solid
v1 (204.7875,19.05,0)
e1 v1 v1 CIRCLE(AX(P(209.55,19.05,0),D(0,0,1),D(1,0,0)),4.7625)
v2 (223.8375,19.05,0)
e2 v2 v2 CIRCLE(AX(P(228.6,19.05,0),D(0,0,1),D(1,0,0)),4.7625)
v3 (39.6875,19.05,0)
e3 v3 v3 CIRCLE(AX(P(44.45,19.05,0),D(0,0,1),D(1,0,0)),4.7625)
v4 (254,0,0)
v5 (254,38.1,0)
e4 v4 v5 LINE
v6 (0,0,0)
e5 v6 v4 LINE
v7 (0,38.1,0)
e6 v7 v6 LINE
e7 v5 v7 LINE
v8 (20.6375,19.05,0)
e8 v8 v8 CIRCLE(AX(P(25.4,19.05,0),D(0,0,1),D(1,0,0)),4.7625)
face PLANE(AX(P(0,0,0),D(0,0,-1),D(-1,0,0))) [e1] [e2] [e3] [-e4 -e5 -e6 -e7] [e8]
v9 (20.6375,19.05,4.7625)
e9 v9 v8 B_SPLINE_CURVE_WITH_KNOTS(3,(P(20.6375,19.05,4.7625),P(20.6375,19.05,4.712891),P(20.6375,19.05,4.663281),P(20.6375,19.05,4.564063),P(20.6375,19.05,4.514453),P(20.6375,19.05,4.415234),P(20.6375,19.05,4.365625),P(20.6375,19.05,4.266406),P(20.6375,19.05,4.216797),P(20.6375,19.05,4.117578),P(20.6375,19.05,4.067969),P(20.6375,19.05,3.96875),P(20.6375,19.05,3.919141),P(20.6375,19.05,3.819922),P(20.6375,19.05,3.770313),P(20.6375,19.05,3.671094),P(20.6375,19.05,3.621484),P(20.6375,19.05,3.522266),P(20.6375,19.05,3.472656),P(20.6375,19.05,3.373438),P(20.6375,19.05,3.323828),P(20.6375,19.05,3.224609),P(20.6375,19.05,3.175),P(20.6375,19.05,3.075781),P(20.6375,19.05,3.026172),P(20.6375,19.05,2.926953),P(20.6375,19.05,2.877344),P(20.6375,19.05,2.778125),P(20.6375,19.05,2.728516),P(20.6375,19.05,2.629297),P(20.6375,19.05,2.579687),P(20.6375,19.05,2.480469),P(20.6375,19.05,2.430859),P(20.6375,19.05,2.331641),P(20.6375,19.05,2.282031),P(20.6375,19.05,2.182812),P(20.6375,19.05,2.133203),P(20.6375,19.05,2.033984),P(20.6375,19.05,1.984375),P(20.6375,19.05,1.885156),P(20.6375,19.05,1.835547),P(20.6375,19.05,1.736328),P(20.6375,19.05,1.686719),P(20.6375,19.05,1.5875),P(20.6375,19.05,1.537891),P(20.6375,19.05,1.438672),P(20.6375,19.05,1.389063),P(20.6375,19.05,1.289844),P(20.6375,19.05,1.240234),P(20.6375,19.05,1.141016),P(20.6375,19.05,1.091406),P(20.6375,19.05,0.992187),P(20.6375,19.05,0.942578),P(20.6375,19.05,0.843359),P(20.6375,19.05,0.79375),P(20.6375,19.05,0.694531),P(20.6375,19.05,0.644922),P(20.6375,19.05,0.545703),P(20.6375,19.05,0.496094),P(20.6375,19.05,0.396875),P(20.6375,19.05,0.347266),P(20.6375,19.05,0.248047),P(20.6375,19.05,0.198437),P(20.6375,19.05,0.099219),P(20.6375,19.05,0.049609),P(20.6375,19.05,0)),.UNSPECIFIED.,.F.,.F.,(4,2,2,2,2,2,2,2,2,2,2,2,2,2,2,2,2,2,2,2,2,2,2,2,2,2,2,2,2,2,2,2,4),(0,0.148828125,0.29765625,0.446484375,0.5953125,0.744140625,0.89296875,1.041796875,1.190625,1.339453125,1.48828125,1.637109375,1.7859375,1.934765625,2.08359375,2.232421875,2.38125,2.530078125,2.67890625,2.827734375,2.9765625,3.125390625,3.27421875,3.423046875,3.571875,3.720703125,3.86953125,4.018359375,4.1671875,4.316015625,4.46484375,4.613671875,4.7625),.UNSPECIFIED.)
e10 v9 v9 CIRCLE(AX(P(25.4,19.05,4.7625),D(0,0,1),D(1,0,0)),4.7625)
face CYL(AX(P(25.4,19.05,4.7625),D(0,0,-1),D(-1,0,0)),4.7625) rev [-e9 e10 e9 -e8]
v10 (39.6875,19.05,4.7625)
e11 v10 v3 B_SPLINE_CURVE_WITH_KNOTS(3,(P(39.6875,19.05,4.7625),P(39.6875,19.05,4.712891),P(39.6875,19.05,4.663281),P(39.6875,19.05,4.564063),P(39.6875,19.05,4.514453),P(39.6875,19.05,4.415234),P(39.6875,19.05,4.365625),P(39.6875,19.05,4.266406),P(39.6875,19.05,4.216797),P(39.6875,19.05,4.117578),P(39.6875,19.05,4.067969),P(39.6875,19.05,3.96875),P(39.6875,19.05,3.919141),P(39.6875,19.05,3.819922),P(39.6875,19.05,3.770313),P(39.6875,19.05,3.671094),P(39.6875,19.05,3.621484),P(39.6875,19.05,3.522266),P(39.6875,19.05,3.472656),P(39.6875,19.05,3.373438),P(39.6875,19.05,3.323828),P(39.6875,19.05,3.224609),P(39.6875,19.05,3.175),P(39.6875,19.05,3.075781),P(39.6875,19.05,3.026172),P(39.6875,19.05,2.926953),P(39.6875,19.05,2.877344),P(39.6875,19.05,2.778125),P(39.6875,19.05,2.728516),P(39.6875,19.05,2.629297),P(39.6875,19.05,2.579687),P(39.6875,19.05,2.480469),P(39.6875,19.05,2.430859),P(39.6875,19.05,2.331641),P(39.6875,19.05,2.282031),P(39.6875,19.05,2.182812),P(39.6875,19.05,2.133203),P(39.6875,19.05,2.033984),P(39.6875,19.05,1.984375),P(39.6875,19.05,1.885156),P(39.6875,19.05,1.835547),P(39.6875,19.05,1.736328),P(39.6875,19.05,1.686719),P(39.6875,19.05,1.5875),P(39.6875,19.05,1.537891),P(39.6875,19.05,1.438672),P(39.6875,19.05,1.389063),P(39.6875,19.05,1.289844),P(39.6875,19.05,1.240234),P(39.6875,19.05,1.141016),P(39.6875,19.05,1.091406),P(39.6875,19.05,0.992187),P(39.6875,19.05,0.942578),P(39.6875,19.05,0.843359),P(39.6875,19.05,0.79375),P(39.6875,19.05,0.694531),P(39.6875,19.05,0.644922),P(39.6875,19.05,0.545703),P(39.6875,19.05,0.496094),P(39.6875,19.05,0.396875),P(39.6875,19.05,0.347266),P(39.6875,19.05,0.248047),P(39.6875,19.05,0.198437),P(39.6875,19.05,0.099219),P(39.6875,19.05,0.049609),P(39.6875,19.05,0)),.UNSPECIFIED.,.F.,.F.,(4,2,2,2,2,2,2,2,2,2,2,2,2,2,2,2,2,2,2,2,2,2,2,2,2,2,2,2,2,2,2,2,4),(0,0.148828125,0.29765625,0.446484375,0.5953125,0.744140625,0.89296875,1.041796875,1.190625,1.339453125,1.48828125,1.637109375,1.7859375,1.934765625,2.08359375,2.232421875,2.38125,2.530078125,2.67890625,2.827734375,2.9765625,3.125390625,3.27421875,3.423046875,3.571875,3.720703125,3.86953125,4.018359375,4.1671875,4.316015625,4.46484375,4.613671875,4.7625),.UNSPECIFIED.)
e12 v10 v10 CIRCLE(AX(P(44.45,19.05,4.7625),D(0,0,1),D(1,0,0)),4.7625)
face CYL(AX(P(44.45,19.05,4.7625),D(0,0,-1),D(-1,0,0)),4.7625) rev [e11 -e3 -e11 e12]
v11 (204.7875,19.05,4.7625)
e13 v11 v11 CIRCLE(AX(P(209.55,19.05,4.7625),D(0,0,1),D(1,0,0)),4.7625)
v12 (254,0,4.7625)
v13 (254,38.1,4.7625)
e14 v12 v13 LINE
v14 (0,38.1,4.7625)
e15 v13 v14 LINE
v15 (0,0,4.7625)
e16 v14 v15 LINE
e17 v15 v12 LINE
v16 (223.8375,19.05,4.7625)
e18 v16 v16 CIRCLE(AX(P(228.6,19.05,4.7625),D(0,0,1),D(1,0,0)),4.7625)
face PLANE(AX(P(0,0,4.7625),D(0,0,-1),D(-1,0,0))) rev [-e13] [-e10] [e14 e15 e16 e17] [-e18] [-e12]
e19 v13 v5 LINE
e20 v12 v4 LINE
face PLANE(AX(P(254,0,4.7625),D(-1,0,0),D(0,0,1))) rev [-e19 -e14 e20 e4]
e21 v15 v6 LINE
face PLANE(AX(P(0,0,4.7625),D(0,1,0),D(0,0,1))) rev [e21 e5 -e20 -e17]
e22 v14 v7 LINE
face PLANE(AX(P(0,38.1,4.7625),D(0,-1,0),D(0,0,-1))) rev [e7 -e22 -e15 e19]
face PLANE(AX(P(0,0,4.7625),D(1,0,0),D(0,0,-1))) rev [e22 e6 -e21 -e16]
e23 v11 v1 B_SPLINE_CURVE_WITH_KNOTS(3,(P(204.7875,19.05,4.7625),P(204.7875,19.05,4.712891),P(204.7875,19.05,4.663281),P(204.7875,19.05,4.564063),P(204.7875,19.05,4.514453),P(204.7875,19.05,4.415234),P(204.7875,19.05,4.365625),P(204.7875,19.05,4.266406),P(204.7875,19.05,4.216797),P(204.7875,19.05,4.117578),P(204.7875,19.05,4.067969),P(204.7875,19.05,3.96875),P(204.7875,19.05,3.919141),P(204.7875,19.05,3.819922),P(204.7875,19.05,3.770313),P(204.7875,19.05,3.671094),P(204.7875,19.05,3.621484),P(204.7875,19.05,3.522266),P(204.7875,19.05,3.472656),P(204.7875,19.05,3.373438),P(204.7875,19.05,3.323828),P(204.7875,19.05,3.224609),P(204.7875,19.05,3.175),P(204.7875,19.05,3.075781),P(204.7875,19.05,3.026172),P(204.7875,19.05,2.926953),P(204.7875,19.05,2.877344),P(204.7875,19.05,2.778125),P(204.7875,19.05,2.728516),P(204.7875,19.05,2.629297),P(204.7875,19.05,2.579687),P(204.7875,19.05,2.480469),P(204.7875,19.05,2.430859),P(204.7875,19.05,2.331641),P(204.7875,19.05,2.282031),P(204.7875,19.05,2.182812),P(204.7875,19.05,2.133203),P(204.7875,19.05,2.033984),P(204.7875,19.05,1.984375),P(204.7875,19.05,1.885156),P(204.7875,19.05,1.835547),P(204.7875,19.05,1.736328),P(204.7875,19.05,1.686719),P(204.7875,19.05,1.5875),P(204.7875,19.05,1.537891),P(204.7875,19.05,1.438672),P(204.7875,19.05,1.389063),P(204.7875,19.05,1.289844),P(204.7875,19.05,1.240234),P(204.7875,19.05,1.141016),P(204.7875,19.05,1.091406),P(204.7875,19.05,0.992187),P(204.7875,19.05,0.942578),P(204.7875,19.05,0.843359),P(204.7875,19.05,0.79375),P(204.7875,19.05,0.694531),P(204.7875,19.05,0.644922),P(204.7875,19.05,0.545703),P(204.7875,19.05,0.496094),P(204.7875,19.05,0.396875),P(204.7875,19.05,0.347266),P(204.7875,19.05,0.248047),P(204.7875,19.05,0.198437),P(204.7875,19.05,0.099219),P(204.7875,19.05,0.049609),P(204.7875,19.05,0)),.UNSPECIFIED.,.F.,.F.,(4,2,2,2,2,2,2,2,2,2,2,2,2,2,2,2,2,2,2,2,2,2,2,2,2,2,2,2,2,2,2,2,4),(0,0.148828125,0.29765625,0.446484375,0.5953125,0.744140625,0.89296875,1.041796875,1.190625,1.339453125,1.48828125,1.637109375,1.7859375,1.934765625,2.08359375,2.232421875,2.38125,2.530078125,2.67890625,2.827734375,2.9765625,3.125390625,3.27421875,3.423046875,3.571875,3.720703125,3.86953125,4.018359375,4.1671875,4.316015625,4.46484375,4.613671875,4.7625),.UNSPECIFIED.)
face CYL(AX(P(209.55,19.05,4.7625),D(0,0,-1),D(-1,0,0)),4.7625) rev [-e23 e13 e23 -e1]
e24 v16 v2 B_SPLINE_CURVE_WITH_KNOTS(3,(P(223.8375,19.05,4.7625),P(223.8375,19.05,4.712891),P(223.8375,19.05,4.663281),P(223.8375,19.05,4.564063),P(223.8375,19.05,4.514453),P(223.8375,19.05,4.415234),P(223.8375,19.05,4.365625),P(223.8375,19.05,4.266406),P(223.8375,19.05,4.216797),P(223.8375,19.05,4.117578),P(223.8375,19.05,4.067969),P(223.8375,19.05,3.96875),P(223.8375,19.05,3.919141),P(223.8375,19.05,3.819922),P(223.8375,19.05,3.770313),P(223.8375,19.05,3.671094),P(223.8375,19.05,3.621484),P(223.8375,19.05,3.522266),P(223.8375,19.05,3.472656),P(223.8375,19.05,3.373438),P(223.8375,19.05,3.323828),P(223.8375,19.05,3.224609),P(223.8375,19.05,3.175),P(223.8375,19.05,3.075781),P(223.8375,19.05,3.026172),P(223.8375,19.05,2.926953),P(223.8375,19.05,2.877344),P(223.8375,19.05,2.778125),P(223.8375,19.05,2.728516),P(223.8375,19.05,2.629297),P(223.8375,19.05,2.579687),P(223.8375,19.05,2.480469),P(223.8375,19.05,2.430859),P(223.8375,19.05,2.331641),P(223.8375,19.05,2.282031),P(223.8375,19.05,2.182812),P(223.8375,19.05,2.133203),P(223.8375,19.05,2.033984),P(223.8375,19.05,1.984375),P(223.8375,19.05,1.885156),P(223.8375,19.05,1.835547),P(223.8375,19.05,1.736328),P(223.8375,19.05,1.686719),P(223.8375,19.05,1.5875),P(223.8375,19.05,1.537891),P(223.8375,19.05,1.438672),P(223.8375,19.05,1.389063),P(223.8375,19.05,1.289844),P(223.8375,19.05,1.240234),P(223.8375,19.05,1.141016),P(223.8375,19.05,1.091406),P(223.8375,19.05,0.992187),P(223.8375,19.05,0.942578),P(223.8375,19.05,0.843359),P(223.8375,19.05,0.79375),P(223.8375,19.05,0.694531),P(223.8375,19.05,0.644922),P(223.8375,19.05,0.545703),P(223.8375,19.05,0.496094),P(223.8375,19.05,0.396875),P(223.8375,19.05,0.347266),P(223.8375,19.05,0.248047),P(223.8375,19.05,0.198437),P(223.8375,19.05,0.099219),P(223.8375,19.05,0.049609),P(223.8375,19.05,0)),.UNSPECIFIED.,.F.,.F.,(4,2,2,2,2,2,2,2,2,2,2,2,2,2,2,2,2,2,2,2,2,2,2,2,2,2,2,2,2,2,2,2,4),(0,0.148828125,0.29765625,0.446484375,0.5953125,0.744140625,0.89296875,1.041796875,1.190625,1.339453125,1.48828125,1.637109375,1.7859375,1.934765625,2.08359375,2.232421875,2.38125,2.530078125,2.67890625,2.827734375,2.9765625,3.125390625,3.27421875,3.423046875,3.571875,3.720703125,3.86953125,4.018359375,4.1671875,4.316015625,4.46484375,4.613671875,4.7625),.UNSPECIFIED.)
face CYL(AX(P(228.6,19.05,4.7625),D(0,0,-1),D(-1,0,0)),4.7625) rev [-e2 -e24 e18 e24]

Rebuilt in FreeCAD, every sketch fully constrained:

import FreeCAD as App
import Part
import Sketcher
from FreeCAD import Vector
Q = App.Units.Quantity


def add_polygon(sketch, points):
    """Adds a closed chain of lines whose ends are joined by coincident constraints."""
    first, n = sketch.GeometryCount, len(points)
    for a, b in zip(points, points[1:] + points[:1]):
        sketch.addGeometry(Part.LineSegment(App.Vector(*a, 0), App.Vector(*b, 0)), False)
    for i in range(n):
        sketch.addConstraint(Sketcher.Constraint("Coincident", first + i, 2, first + (i + 1) % n, 1))

doc = App.newDocument("Part")
body = doc.addObject("PartDesign::Body", "Body")

sketch1 = body.newObject("Sketcher::SketchObject", "Sketch")
sketch1.AttachmentSupport = (doc.getObject("XY_Plane"), [""])
sketch1.MapMode = "FlatFace"
add_polygon(sketch1, [(0, 38.1), (0, 0), (254, 0), (254, 38.1)])
sketch1.addGeometry(Part.Circle(Vector(25.4, 19.05, 0), Vector(0, 0, 1), 4.7625), False)
sketch1.addGeometry(Part.Circle(Vector(44.45, 19.05, 0), Vector(0, 0, 1), 4.7625), False)
sketch1.addGeometry(Part.Circle(Vector(209.55, 19.05, 0), Vector(0, 0, 1), 4.7625), False)
sketch1.addGeometry(Part.Circle(Vector(228.6, 19.05, 0), Vector(0, 0, 1), 4.7625), False)
sketch1.addConstraint([
    Sketcher.Constraint("Vertical", 0),
    Sketcher.Constraint("Horizontal", 1),
    Sketcher.Constraint("Vertical", 2),
    Sketcher.Constraint("Horizontal", 3),
    Sketcher.Constraint("Coincident", 0, 2, -1, 1),
    Sketcher.Constraint("Equal", 4, 5),
    Sketcher.Constraint("Equal", 5, 6),
    Sketcher.Constraint("Equal", 6, 7),
    Sketcher.Constraint("Horizontal", 4, 3, 5, 3),
    Sketcher.Constraint("Horizontal", 5, 3, 6, 3),
    Sketcher.Constraint("Horizontal", 6, 3, 7, 3),
    Sketcher.Constraint("DistanceX", 1, 1, 1, 2, Q("10 in")),
    Sketcher.Constraint("Diameter", 4, Q("0.375 in")),
    Sketcher.Constraint("DistanceY", 0, 2, 0, 1, Q("1.5 in")),
    Sketcher.Constraint("DistanceX", -1, 1, 4, 3, Q("1 in")),
    Sketcher.Constraint("DistanceX", -1, 1, 7, 3, Q("9 in")),
    Sketcher.Constraint("DistanceX", 5, 3, 6, 3, Q("6.5 in")),
    Sketcher.Constraint("DistanceY", -1, 1, 4, 3, Q("0.75 in")),
    Sketcher.Constraint("DistanceX", -1, 1, 5, 3, Q("1.75 in")),
])
pad1 = body.newObject("PartDesign::Pad", "Pad")
pad1.Profile = sketch1
pad1.Length = Q("0.1875 in")

doc.recompute()
